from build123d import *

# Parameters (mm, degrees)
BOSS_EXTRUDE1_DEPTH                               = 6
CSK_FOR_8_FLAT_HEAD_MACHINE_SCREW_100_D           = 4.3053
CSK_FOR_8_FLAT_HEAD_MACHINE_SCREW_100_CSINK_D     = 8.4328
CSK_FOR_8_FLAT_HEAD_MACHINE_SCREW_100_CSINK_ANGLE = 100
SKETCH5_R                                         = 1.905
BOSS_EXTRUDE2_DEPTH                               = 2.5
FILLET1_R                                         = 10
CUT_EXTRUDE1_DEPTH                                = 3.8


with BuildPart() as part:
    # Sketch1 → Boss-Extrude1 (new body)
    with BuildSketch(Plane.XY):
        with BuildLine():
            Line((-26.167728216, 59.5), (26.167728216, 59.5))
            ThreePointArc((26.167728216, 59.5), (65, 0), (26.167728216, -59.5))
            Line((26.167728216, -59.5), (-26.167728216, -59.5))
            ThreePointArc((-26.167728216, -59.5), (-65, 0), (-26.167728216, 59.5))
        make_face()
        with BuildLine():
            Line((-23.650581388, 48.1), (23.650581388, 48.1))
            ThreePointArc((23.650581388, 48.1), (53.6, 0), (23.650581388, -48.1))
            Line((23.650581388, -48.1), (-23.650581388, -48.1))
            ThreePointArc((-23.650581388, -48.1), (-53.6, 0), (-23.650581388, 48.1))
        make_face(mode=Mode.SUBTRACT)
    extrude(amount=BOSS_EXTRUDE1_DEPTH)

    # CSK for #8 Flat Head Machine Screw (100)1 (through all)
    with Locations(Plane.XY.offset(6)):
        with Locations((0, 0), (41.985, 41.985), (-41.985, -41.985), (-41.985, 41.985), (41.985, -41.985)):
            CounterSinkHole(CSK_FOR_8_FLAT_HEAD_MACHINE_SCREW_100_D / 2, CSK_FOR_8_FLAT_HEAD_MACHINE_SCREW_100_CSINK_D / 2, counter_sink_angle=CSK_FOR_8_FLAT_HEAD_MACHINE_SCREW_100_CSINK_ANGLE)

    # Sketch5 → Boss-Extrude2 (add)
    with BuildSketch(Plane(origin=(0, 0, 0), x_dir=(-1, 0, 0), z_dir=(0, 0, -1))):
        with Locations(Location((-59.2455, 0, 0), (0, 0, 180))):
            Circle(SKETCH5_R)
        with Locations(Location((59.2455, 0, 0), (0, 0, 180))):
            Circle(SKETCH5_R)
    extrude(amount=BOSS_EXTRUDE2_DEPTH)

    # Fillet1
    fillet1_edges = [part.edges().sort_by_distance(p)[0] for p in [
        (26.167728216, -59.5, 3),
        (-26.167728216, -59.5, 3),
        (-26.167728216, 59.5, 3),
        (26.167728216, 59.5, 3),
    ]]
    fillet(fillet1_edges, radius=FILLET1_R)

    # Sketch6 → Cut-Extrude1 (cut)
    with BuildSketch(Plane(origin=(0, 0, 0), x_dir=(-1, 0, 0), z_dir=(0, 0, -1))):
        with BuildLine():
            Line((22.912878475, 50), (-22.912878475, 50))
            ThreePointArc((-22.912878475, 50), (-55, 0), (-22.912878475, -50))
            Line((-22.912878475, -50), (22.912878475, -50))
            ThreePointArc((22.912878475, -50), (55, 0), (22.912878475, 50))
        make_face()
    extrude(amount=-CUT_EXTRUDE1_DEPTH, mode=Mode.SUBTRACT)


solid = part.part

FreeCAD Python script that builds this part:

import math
import FreeCAD as App
import Part
import Sketcher


def edges_at(feature, points):
    """Names of the edges that pass closest to the given points."""
    edges = feature.Shape.Edges
    near = lambda p: min(range(len(edges)), key=lambda i: edges[i].distToShape(Part.Vertex(*p))[0])
    return sorted({f"Edge{near(p) + 1}" for p in points})

doc = App.newDocument("Part")
body = doc.addObject("PartDesign::Body", "Body")

# Sketch on XY plane
sketch1 = doc.addObject("Sketcher::SketchObject", "Sketch")
body.addObject(sketch1)
sketch1.AttachmentSupport = (doc.XY_Plane, [""])
sketch1.MapMode = "FlatFace"
sketch1.addGeometry(Part.LineSegment(App.Vector(26.167728, 59.5, 0), App.Vector(-26.167728, 59.5, 0)), False)
sketch1.addGeometry(Part.ArcOfCircle(Part.Circle(App.Vector(0, 0, 0), App.Vector(0, 0, 1), 65), math.radians(113.739593), math.radians(246.260407)), False)
sketch1.addGeometry(Part.LineSegment(App.Vector(-26.167728, -59.5, 0), App.Vector(26.167728, -59.5, 0)), False)
sketch1.addGeometry(Part.ArcOfCircle(Part.Circle(App.Vector(0, 0, 0), App.Vector(0, 0, 1), 65), math.radians(-66.260407), math.radians(66.260407)), False)
sketch1.addGeometry(Part.LineSegment(App.Vector(-23.650581, 48.1, 0), App.Vector(23.650581, 48.1, 0)), False)
sketch1.addGeometry(Part.ArcOfCircle(Part.Circle(App.Vector(0, 0, 0), App.Vector(0, 0, 1), 53.6), math.radians(-63.816835), math.radians(63.816835)), False)
sketch1.addGeometry(Part.LineSegment(App.Vector(23.650581, -48.1, 0), App.Vector(-23.650581, -48.1, 0)), False)
sketch1.addGeometry(Part.ArcOfCircle(Part.Circle(App.Vector(0, 0, 0), App.Vector(0, 0, 1), 53.6), math.radians(116.183165), math.radians(243.816835)), False)
sketch1.addConstraint(Sketcher.Constraint("Coincident", 0, 2, 1, 1))
sketch1.addConstraint(Sketcher.Constraint("Coincident", 1, 2, 2, 1))
sketch1.addConstraint(Sketcher.Constraint("Coincident", 2, 2, 3, 1))
sketch1.addConstraint(Sketcher.Constraint("Coincident", 3, 2, 0, 1))
sketch1.addConstraint(Sketcher.Constraint("Coincident", 4, 2, 5, 2))
sketch1.addConstraint(Sketcher.Constraint("Coincident", 5, 1, 6, 1))
sketch1.addConstraint(Sketcher.Constraint("Coincident", 6, 2, 7, 2))
sketch1.addConstraint(Sketcher.Constraint("Coincident", 7, 1, 4, 1))
sketch1.addConstraint(Sketcher.Constraint("Horizontal", 0))
sketch1.addConstraint(Sketcher.Constraint("Horizontal", 2))
sketch1.addConstraint(Sketcher.Constraint("Horizontal", 4))
sketch1.addConstraint(Sketcher.Constraint("Horizontal", 6))
sketch1.addConstraint(Sketcher.Constraint("Coincident", 1, 3, -1, 1))
sketch1.addConstraint(Sketcher.Constraint("Coincident", 3, 3, -1, 1))
sketch1.addConstraint(Sketcher.Constraint("Coincident", 5, 3, -1, 1))
sketch1.addConstraint(Sketcher.Constraint("Coincident", 7, 3, -1, 1))
sketch1.addConstraint(Sketcher.Constraint("Equal", 1, 3))
sketch1.addConstraint(Sketcher.Constraint("Equal", 5, 7))
sketch1.addConstraint(Sketcher.Constraint("Vertical", 0, 2, 1, 2))
sketch1.addConstraint(Sketcher.Constraint("Vertical", 4, 2, 5, 1))
sketch1.addConstraint(Sketcher.Constraint("Radius", 1, 65.0))
sketch1.addConstraint(Sketcher.Constraint("Radius", 5, 53.6))
sketch1.addConstraint(Sketcher.Constraint("DistanceY", 1, 2, 0, 2, 119.0))
sketch1.addConstraint(Sketcher.Constraint("DistanceY", -1, 1, 4, 2, 48.1))
pad1 = doc.addObject("PartDesign::Pad", "Pad")
body.addObject(pad1)
pad1.Profile = sketch1
pad1.Length = 6

# Sketch on XY plane
sketch2 = doc.addObject("Sketcher::SketchObject", "Sketch001")
body.addObject(sketch2)
sketch2.AttachmentSupport = (doc.XY_Plane, [""])
sketch2.MapMode = "FlatFace"
sketch2.AttachmentOffset = App.Placement(App.Vector(0, 0, 6), App.Rotation())
sketch2.addGeometry(Part.Circle(App.Vector(0, 0, 0), App.Vector(0, 0, 1), 2.15265), False)
sketch2.addGeometry(Part.Circle(App.Vector(41.985, 41.985, 0), App.Vector(0, 0, 1), 2.15265), False)
sketch2.addGeometry(Part.Circle(App.Vector(-41.985, -41.985, 0), App.Vector(0, 0, 1), 2.15265), False)
sketch2.addGeometry(Part.Circle(App.Vector(-41.985, 41.985, 0), App.Vector(0, 0, 1), 2.15265), False)
sketch2.addGeometry(Part.Circle(App.Vector(41.985, -41.985, 0), App.Vector(0, 0, 1), 2.15265), False)
sketch2.addConstraint(Sketcher.Constraint("Coincident", 0, 3, -1, 1))
sketch2.addConstraint(Sketcher.Constraint("Equal", 0, 1))
sketch2.addConstraint(Sketcher.Constraint("Equal", 1, 2))
sketch2.addConstraint(Sketcher.Constraint("Equal", 2, 3))
sketch2.addConstraint(Sketcher.Constraint("Equal", 3, 4))
sketch2.addConstraint(Sketcher.Constraint("Symmetric", 1, 3, 2, 3, -1, 1))
sketch2.addConstraint(Sketcher.Constraint("Symmetric", 3, 3, 4, 3, -1, 1))
sketch2.addConstraint(Sketcher.Constraint("Symmetric", 1, 3, 3, 3, -2))
sketch2.addConstraint(Sketcher.Constraint("Diameter", 0, 4.3053))
sketch2.addConstraint(Sketcher.Constraint("DistanceX", 2, 3, 1, 3, 83.97))
sketch2.addConstraint(Sketcher.Constraint("DistanceY", 2, 3, 1, 3, 83.97))
doc.recompute()
hole = doc.addObject("PartDesign::Hole", "Hole")
body.addObject(hole)
hole.Profile = sketch2
hole.ThreadType = "None"
hole.Diameter = 4.3053
hole.DepthType = "ThroughAll"
hole.HoleCutType = "Countersink"
hole.HoleCutDiameter = 8.4328
hole.HoleCutCountersinkAngle = 100

# Sketch on XY plane
sketch3 = doc.addObject("Sketcher::SketchObject", "Sketch002")
body.addObject(sketch3)
sketch3.AttachmentSupport = (doc.XY_Plane, [""])
sketch3.MapMode = "FlatFace"
sketch3.addGeometry(Part.Circle(App.Vector(59.2455, 0, 0), App.Vector(0, 0, 1), 1.905), False)
sketch3.addGeometry(Part.Circle(App.Vector(-59.2455, 0, 0), App.Vector(0, 0, 1), 1.905), False)
sketch3.addConstraint(Sketcher.Constraint("Equal", 0, 1))
sketch3.addConstraint(Sketcher.Constraint("Symmetric", 0, 3, 1, 3, -1, 1))
sketch3.addConstraint(Sketcher.Constraint("PointOnObject", 0, 3, -1))
sketch3.addConstraint(Sketcher.Constraint("Diameter", 0, 3.81))
sketch3.addConstraint(Sketcher.Constraint("DistanceX", 1, 3, 0, 3, 118.491))
pad2 = doc.addObject("PartDesign::Pad", "Pad001")
body.addObject(pad2)
pad2.Profile = sketch3
pad2.Length = 2.5
pad2.Reversed = True
doc.recompute()

fillet = doc.addObject("PartDesign::Fillet", "Fillet")
body.addObject(fillet)
fillet.Base = (pad2, edges_at(pad2, [
    (26.168, -59.5, 3),
    (-26.168, -59.5, 3),
    (-26.168, 59.5, 3),
    (26.168, 59.5, 3),
]))
fillet.Radius = 10

# Sketch on XY plane
sketch4 = doc.addObject("Sketcher::SketchObject", "Sketch003")
body.addObject(sketch4)
sketch4.AttachmentSupport = (doc.XY_Plane, [""])
sketch4.MapMode = "FlatFace"
sketch4.addGeometry(Part.LineSegment(App.Vector(-22.912878, 50, 0), App.Vector(22.912878, 50, 0)), False)
sketch4.addGeometry(Part.ArcOfCircle(Part.Circle(App.Vector(0, 0, 0), App.Vector(0, 0, 1), 55), math.radians(-65.380023), math.radians(65.380023)), False)
sketch4.addGeometry(Part.LineSegment(App.Vector(22.912878, -50, 0), App.Vector(-22.912878, -50, 0)), False)
sketch4.addGeometry(Part.ArcOfCircle(Part.Circle(App.Vector(0, 0, 0), App.Vector(0, 0, 1), 55), math.radians(114.619977), math.radians(245.380023)), False)
sketch4.addConstraint(Sketcher.Constraint("Coincident", 0, 2, 1, 2))
sketch4.addConstraint(Sketcher.Constraint("Coincident", 1, 1, 2, 1))
sketch4.addConstraint(Sketcher.Constraint("Coincident", 2, 2, 3, 2))
sketch4.addConstraint(Sketcher.Constraint("Coincident", 3, 1, 0, 1))
sketch4.addConstraint(Sketcher.Constraint("Horizontal", 0))
sketch4.addConstraint(Sketcher.Constraint("Horizontal", 2))
sketch4.addConstraint(Sketcher.Constraint("Coincident", 1, 3, -1, 1))
sketch4.addConstraint(Sketcher.Constraint("Coincident", 3, 3, -1, 1))
sketch4.addConstraint(Sketcher.Constraint("Equal", 1, 3))
sketch4.addConstraint(Sketcher.Constraint("Vertical", 0, 2, 1, 1))
sketch4.addConstraint(Sketcher.Constraint("Radius", 1, 55.0))
sketch4.addConstraint(Sketcher.Constraint("DistanceY", -1, 1, 0, 2, 50.0))
pocket1 = doc.addObject("PartDesign::Pocket", "Pocket")
body.addObject(pocket1)
pocket1.Profile = sketch4
pocket1.Length = 3.8
pocket1.Reversed = True

doc.recompute()
